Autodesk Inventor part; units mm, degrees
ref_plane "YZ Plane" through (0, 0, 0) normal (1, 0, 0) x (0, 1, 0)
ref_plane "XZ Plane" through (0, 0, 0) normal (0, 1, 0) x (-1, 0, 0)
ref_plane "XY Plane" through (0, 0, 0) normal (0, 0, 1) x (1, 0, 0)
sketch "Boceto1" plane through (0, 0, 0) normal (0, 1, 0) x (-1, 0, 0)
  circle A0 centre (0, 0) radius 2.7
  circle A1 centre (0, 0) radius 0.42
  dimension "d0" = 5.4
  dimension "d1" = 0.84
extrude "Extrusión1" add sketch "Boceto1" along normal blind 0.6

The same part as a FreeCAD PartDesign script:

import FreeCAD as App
import Part
import Sketcher

V = App.Vector

doc = App.newDocument("Part")
body = doc.addObject("PartDesign::Body", "Body")

sketch1 = body.newObject("Sketcher::SketchObject", "Sketch")
sketch1.AttachmentSupport = (doc.getObject("XZ_Plane"), [""])
sketch1.MapMode = "FlatFace"
sketch1.addGeometry([
    Part.Circle(V(0, 0, 0), V(0, 0, 1), 2.7),
    Part.Circle(V(0, 0, 0), V(0, 0, 1), 0.42),
], False)
sketch1.addConstraint([
    Sketcher.Constraint("Coincident", 0, 3, -1, 1),
    Sketcher.Constraint("Coincident", 1, 3, -1, 1),
    Sketcher.Constraint("Diameter", 0, 5.4),
    Sketcher.Constraint("Diameter", 1, 0.84),
])
pad1 = body.newObject("PartDesign::Pad", "Pad")
pad1.Profile = sketch1
pad1.Length = 0.6
pad1.Reversed = True

doc.recompute()
